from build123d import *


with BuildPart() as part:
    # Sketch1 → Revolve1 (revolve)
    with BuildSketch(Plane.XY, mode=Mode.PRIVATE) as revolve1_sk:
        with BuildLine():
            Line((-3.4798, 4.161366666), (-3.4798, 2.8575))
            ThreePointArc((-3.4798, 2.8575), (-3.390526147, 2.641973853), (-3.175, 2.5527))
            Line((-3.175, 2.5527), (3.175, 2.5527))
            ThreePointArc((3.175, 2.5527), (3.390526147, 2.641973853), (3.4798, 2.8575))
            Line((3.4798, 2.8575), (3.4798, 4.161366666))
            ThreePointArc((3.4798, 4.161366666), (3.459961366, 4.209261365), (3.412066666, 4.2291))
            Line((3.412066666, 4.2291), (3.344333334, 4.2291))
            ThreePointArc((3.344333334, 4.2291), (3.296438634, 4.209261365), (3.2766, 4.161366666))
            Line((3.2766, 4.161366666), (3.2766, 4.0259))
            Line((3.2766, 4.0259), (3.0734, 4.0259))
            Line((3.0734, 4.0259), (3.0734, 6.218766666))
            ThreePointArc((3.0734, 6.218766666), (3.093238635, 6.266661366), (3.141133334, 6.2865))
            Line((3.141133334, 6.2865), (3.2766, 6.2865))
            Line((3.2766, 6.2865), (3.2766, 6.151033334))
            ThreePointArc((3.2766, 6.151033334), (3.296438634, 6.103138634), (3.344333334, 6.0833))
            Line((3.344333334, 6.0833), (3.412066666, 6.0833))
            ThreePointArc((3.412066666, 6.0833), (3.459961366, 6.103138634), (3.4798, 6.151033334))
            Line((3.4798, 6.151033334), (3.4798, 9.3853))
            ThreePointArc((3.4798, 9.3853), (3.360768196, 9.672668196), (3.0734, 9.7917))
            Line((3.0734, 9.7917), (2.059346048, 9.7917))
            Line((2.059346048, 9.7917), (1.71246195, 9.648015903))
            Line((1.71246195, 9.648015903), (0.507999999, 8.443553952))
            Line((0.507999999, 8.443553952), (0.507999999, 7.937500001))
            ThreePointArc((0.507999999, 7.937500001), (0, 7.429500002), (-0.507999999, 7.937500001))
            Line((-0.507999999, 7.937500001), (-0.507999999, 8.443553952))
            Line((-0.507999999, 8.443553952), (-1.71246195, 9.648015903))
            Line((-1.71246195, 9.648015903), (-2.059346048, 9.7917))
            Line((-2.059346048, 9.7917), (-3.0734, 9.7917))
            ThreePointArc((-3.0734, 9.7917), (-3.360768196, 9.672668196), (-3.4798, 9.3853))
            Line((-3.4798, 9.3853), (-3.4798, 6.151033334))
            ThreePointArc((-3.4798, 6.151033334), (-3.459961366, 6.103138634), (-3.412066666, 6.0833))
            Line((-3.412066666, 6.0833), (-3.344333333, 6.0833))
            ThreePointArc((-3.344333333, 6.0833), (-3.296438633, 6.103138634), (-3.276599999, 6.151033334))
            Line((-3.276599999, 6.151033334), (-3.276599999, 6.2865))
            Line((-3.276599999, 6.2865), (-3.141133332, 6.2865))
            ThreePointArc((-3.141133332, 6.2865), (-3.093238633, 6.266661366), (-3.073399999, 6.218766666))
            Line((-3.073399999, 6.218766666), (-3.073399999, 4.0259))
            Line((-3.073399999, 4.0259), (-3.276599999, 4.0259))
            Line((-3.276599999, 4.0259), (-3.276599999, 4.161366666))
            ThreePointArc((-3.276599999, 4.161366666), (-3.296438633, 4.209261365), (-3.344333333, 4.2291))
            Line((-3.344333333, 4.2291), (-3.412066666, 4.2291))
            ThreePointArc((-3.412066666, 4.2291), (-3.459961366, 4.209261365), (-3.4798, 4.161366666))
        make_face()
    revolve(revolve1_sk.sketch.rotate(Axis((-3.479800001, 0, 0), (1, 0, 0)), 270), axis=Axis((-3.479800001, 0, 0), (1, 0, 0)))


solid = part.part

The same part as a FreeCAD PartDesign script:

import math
import FreeCAD as App
import Part
import Sketcher
Q = App.Units.Quantity

doc = App.newDocument("Part")
body = doc.addObject("PartDesign::Body", "Body")

sketch1 = doc.addObject("Sketcher::SketchObject", "Sketch")
body.addObject(sketch1)
sketch1.AttachmentSupport = (doc.XY_Plane, [""])
sketch1.MapMode = "FlatFace"
sketch1.addGeometry(Part.LineSegment(App.Vector(-3.48, 4.16, 0), App.Vector(-3.48, 2.86, 0)), False)
sketch1.addGeometry(Part.ArcOfCircle(Part.Circle(App.Vector(-3.17, 2.86, 0), App.Vector(0, 0, 1), 0.3), math.radians(180), math.radians(270)), False)
sketch1.addGeometry(Part.LineSegment(App.Vector(-3.17, 2.55, 0), App.Vector(3.17, 2.55, 0)), False)
sketch1.addGeometry(Part.ArcOfCircle(Part.Circle(App.Vector(3.17, 2.86, 0), App.Vector(0, 0, 1), 0.3), math.radians(-90), math.radians(0)), False)
sketch1.addGeometry(Part.LineSegment(App.Vector(3.48, 2.86, 0), App.Vector(3.48, 4.16, 0)), False)
sketch1.addGeometry(Part.ArcOfCircle(Part.Circle(App.Vector(3.41, 4.16, 0), App.Vector(0, 0, 1), 0.07), math.radians(0), math.radians(90)), False)
sketch1.addGeometry(Part.LineSegment(App.Vector(3.41, 4.23, 0), App.Vector(3.34, 4.23, 0)), False)
sketch1.addGeometry(Part.ArcOfCircle(Part.Circle(App.Vector(3.34, 4.16, 0), App.Vector(0, 0, 1), 0.07), math.radians(90), math.radians(180)), False)
sketch1.addGeometry(Part.LineSegment(App.Vector(3.28, 4.16, 0), App.Vector(3.28, 4.03, 0)), False)
sketch1.addGeometry(Part.LineSegment(App.Vector(3.28, 4.03, 0), App.Vector(3.07, 4.03, 0)), False)
sketch1.addGeometry(Part.LineSegment(App.Vector(3.07, 4.03, 0), App.Vector(3.07, 6.22, 0)), False)
sketch1.addGeometry(Part.ArcOfCircle(Part.Circle(App.Vector(3.14, 6.22, 0), App.Vector(0, 0, 1), 0.07), math.radians(90), math.radians(180)), False)
sketch1.addGeometry(Part.LineSegment(App.Vector(3.14, 6.29, 0), App.Vector(3.28, 6.29, 0)), False)
sketch1.addGeometry(Part.LineSegment(App.Vector(3.28, 6.29, 0), App.Vector(3.28, 6.15, 0)), False)
sketch1.addGeometry(Part.ArcOfCircle(Part.Circle(App.Vector(3.34, 6.15, 0), App.Vector(0, 0, 1), 0.07), math.radians(180), math.radians(270)), False)
sketch1.addGeometry(Part.LineSegment(App.Vector(3.34, 6.08, 0), App.Vector(3.41, 6.08, 0)), False)
sketch1.addGeometry(Part.ArcOfCircle(Part.Circle(App.Vector(3.41, 6.15, 0), App.Vector(0, 0, 1), 0.07), math.radians(-90), math.radians(0)), False)
sketch1.addGeometry(Part.LineSegment(App.Vector(3.48, 6.15, 0), App.Vector(3.48, 9.39, 0)), False)
sketch1.addGeometry(Part.ArcOfCircle(Part.Circle(App.Vector(3.07, 9.39, 0), App.Vector(0, 0, 1), 0.41), math.radians(0), math.radians(90)), False)
sketch1.addGeometry(Part.LineSegment(App.Vector(3.07, 9.79, 0), App.Vector(2.06, 9.79, 0)), False)
sketch1.addGeometry(Part.LineSegment(App.Vector(2.06, 9.79, 0), App.Vector(1.71, 9.65, 0)), False)
sketch1.addGeometry(Part.LineSegment(App.Vector(1.71, 9.65, 0), App.Vector(0.51, 8.44, 0)), False)
sketch1.addGeometry(Part.LineSegment(App.Vector(0.51, 8.44, 0), App.Vector(0.51, 7.94, 0)), False)
sketch1.addGeometry(Part.ArcOfCircle(Part.Circle(App.Vector(0, 7.94, 0), App.Vector(0, 0, 1), 0.51), math.radians(180), math.radians(360)), False)
sketch1.addGeometry(Part.LineSegment(App.Vector(-0.51, 7.94, 0), App.Vector(-0.51, 8.44, 0)), False)
sketch1.addGeometry(Part.LineSegment(App.Vector(-0.51, 8.44, 0), App.Vector(-1.71, 9.65, 0)), False)
sketch1.addGeometry(Part.LineSegment(App.Vector(-1.71, 9.65, 0), App.Vector(-2.06, 9.79, 0)), False)
sketch1.addGeometry(Part.LineSegment(App.Vector(-2.06, 9.79, 0), App.Vector(-3.07, 9.79, 0)), False)
sketch1.addGeometry(Part.ArcOfCircle(Part.Circle(App.Vector(-3.07, 9.39, 0), App.Vector(0, 0, 1), 0.41), math.radians(90), math.radians(180)), False)
sketch1.addGeometry(Part.LineSegment(App.Vector(-3.48, 9.39, 0), App.Vector(-3.48, 6.15, 0)), False)
sketch1.addGeometry(Part.ArcOfCircle(Part.Circle(App.Vector(-3.41, 6.15, 0), App.Vector(0, 0, 1), 0.07), math.radians(180), math.radians(270)), False)
sketch1.addGeometry(Part.LineSegment(App.Vector(-3.41, 6.08, 0), App.Vector(-3.34, 6.08, 0)), False)
sketch1.addGeometry(Part.ArcOfCircle(Part.Circle(App.Vector(-3.34, 6.15, 0), App.Vector(0, 0, 1), 0.07), math.radians(-90), math.radians(0)), False)
sketch1.addGeometry(Part.LineSegment(App.Vector(-3.28, 6.15, 0), App.Vector(-3.28, 6.29, 0)), False)
sketch1.addGeometry(Part.LineSegment(App.Vector(-3.28, 6.29, 0), App.Vector(-3.14, 6.29, 0)), False)
sketch1.addGeometry(Part.ArcOfCircle(Part.Circle(App.Vector(-3.14, 6.22, 0), App.Vector(0, 0, 1), 0.07), math.radians(0), math.radians(90)), False)
sketch1.addGeometry(Part.LineSegment(App.Vector(-3.07, 6.22, 0), App.Vector(-3.07, 4.03, 0)), False)
sketch1.addGeometry(Part.LineSegment(App.Vector(-3.07, 4.03, 0), App.Vector(-3.28, 4.03, 0)), False)
sketch1.addGeometry(Part.LineSegment(App.Vector(-3.28, 4.03, 0), App.Vector(-3.28, 4.16, 0)), False)
sketch1.addGeometry(Part.ArcOfCircle(Part.Circle(App.Vector(-3.34, 4.16, 0), App.Vector(0, 0, 1), 0.07), math.radians(0), math.radians(90)), False)
sketch1.addGeometry(Part.LineSegment(App.Vector(-3.34, 4.23, 0), App.Vector(-3.41, 4.23, 0)), False)
sketch1.addGeometry(Part.ArcOfCircle(Part.Circle(App.Vector(-3.41, 4.16, 0), App.Vector(0, 0, 1), 0.07), math.radians(90), math.radians(180)), False)
sketch1.addConstraint(Sketcher.Constraint("Tangent", 0, 2, 1, 1))
sketch1.addConstraint(Sketcher.Constraint("Tangent", 1, 2, 2, 1))
sketch1.addConstraint(Sketcher.Constraint("Tangent", 2, 2, 3, 1))
sketch1.addConstraint(Sketcher.Constraint("Tangent", 3, 2, 4, 1))
sketch1.addConstraint(Sketcher.Constraint("Tangent", 4, 2, 5, 1))
sketch1.addConstraint(Sketcher.Constraint("Tangent", 5, 2, 6, 1))
sketch1.addConstraint(Sketcher.Constraint("Tangent", 6, 2, 7, 1))
sketch1.addConstraint(Sketcher.Constraint("Tangent", 7, 2, 8, 1))
sketch1.addConstraint(Sketcher.Constraint("Coincident", 8, 2, 9, 1))
sketch1.addConstraint(Sketcher.Constraint("Coincident", 9, 2, 10, 1))
sketch1.addConstraint(Sketcher.Constraint("Tangent", 10, 2, 11, 2))
sketch1.addConstraint(Sketcher.Constraint("Tangent", 11, 1, 12, 1))
sketch1.addConstraint(Sketcher.Constraint("Coincident", 12, 2, 13, 1))
sketch1.addConstraint(Sketcher.Constraint("Tangent", 13, 2, 14, 1))
sketch1.addConstraint(Sketcher.Constraint("Tangent", 14, 2, 15, 1))
sketch1.addConstraint(Sketcher.Constraint("Tangent", 15, 2, 16, 1))
sketch1.addConstraint(Sketcher.Constraint("Tangent", 16, 2, 17, 1))
sketch1.addConstraint(Sketcher.Constraint("Tangent", 17, 2, 18, 1))
sketch1.addConstraint(Sketcher.Constraint("Tangent", 18, 2, 19, 1))
sketch1.addConstraint(Sketcher.Constraint("Coincident", 19, 2, 20, 1))
sketch1.addConstraint(Sketcher.Constraint("Coincident", 20, 2, 21, 1))
sketch1.addConstraint(Sketcher.Constraint("Coincident", 21, 2, 22, 1))
sketch1.addConstraint(Sketcher.Constraint("Tangent", 22, 2, 23, 2))
sketch1.addConstraint(Sketcher.Constraint("Tangent", 23, 1, 24, 1))
sketch1.addConstraint(Sketcher.Constraint("Coincident", 24, 2, 25, 1))
sketch1.addConstraint(Sketcher.Constraint("Coincident", 25, 2, 26, 1))
sketch1.addConstraint(Sketcher.Constraint("Coincident", 26, 2, 27, 1))
sketch1.addConstraint(Sketcher.Constraint("Tangent", 27, 2, 28, 1))
sketch1.addConstraint(Sketcher.Constraint("Tangent", 28, 2, 29, 1))
sketch1.addConstraint(Sketcher.Constraint("Tangent", 29, 2, 30, 1))
sketch1.addConstraint(Sketcher.Constraint("Tangent", 30, 2, 31, 1))
sketch1.addConstraint(Sketcher.Constraint("Tangent", 31, 2, 32, 1))
sketch1.addConstraint(Sketcher.Constraint("Tangent", 32, 2, 33, 1))
sketch1.addConstraint(Sketcher.Constraint("Coincident", 33, 2, 34, 1))
sketch1.addConstraint(Sketcher.Constraint("Tangent", 34, 2, 35, 2))
sketch1.addConstraint(Sketcher.Constraint("Tangent", 35, 1, 36, 1))
sketch1.addConstraint(Sketcher.Constraint("Coincident", 36, 2, 37, 1))
sketch1.addConstraint(Sketcher.Constraint("Coincident", 37, 2, 38, 1))
sketch1.addConstraint(Sketcher.Constraint("Tangent", 38, 2, 39, 1))
sketch1.addConstraint(Sketcher.Constraint("Tangent", 39, 2, 40, 1))
sketch1.addConstraint(Sketcher.Constraint("Tangent", 40, 2, 41, 1))
sketch1.addConstraint(Sketcher.Constraint("Tangent", 41, 2, 0, 1))
sketch1.addConstraint(Sketcher.Constraint("Vertical", 0))
sketch1.addConstraint(Sketcher.Constraint("Horizontal", 2))
sketch1.addConstraint(Sketcher.Constraint("Vertical", 4))
sketch1.addConstraint(Sketcher.Constraint("Horizontal", 6))
sketch1.addConstraint(Sketcher.Constraint("Vertical", 8))
sketch1.addConstraint(Sketcher.Constraint("Horizontal", 9))
sketch1.addConstraint(Sketcher.Constraint("Vertical", 10))
sketch1.addConstraint(Sketcher.Constraint("Horizontal", 12))
sketch1.addConstraint(Sketcher.Constraint("Vertical", 13))
sketch1.addConstraint(Sketcher.Constraint("Horizontal", 15))
sketch1.addConstraint(Sketcher.Constraint("Vertical", 17))
sketch1.addConstraint(Sketcher.Constraint("Horizontal", 19))
sketch1.addConstraint(Sketcher.Constraint("Vertical", 22))
sketch1.addConstraint(Sketcher.Constraint("Vertical", 24))
sketch1.addConstraint(Sketcher.Constraint("Horizontal", 27))
sketch1.addConstraint(Sketcher.Constraint("Vertical", 29))
sketch1.addConstraint(Sketcher.Constraint("Horizontal", 31))
sketch1.addConstraint(Sketcher.Constraint("Vertical", 33))
sketch1.addConstraint(Sketcher.Constraint("Horizontal", 34))
sketch1.addConstraint(Sketcher.Constraint("Vertical", 36))
sketch1.addConstraint(Sketcher.Constraint("Horizontal", 37))
sketch1.addConstraint(Sketcher.Constraint("Vertical", 38))
sketch1.addConstraint(Sketcher.Constraint("Horizontal", 40))
sketch1.addConstraint(Sketcher.Constraint("Equal", 1, 3))
sketch1.addConstraint(Sketcher.Constraint("Equal", 5, 7))
sketch1.addConstraint(Sketcher.Constraint("Equal", 7, 11))
sketch1.addConstraint(Sketcher.Constraint("Equal", 11, 14))
sketch1.addConstraint(Sketcher.Constraint("Equal", 14, 16))
sketch1.addConstraint(Sketcher.Constraint("Equal", 18, 28))
sketch1.addConstraint(Sketcher.Constraint("Equal", 16, 30))
sketch1.addConstraint(Sketcher.Constraint("Equal", 30, 32))
sketch1.addConstraint(Sketcher.Constraint("Equal", 32, 35))
sketch1.addConstraint(Sketcher.Constraint("Equal", 35, 39))
sketch1.addConstraint(Sketcher.Constraint("Equal", 39, 41))
sketch1.addConstraint(Sketcher.Constraint("Symmetric", 18, 3, 28, 3, -2))
sketch1.addConstraint(Sketcher.Constraint("Symmetric", 14, 3, 32, 3, -2))
sketch1.addConstraint(Sketcher.Constraint("Symmetric", 11, 3, 35, 3, -2))
sketch1.addConstraint(Sketcher.Constraint("Symmetric", 7, 3, 39, 3, -2))
sketch1.addConstraint(Sketcher.Constraint("Symmetric", 21, 2, 24, 2, -2))
sketch1.addConstraint(Sketcher.Constraint("Symmetric", 20, 2, 25, 2, -2))
sketch1.addConstraint(Sketcher.Constraint("Perpendicular", 21, 25))
sketch1.addConstraint(Sketcher.Constraint("Horizontal", 9, 2, 36, 2))
sketch1.addConstraint(Sketcher.Constraint("Vertical", 7, 3, 14, 3))
sketch1.addConstraint(Sketcher.Constraint("Vertical", 5, 3, 16, 3))
sketch1.addConstraint(Sketcher.Constraint("Vertical", 30, 3, 41, 3))
sketch1.addConstraint(Sketcher.Constraint("Vertical", 18, 3, 9, 2))
sketch1.addConstraint(Sketcher.Constraint("Equal", 19, 27))
sketch1.addConstraint(Sketcher.Constraint("Equal", 34, 8))
sketch1.addConstraint(Sketcher.Constraint("Equal", 8, 13))
sketch1.addConstraint(Sketcher.Constraint("Radius", 23, Q("0.02 in")))
sketch1.addConstraint(Sketcher.Constraint("Radius", 1, Q("0.012 in")))
sketch1.addConstraint(Sketcher.Constraint("Radius", 18, Q("0.016 in")))
sketch1.addConstraint(Sketcher.Constraint("DistanceX", 2, 1, 2, 2, Q("0.25 in")))
sketch1.addConstraint(Sketcher.Constraint("Angle", 20, Q("-157.5 deg")))
sketch1.addConstraint(Sketcher.Constraint("DistanceX", 9, 2, 9, 1, Q("0.008 in")))
sketch1.addConstraint(Sketcher.Constraint("DistanceY", -1, 1, 23, 3, Q("0.3125 in")))
sketch1.addConstraint(Sketcher.Constraint("DistanceY", 7, 3, 11, 3, Q("0.081 in")))
sketch1.addConstraint(Sketcher.Constraint("DistanceY", 23, 3, 18, 3, Q("0.057 in")))
sketch1.addConstraint(Sketcher.Constraint("DistanceY", 1, 3, 28, 3, Q("0.257 in")))
sketch1.addConstraint(Sketcher.Constraint("DistanceY", 3, 2, 5, 2, Q("0.054 in")))
sketch1.addConstraint(Sketcher.Constraint("Radius", 5, 0.067733))
sketch1.addConstraint(Sketcher.Constraint("DistanceX", 19, 2, 19, 1, 1.014054))
sketch1.addConstraint(Sketcher.Constraint("DistanceY", 22, 2, 22, 1, 0.506054))
revolution = doc.addObject("PartDesign::Revolution", "Revolution")
body.addObject(revolution)
revolution.Profile = sketch1
revolution.ReferenceAxis = (sketch1, ["H_Axis"])
revolution.Angle = 360

doc.recompute()
